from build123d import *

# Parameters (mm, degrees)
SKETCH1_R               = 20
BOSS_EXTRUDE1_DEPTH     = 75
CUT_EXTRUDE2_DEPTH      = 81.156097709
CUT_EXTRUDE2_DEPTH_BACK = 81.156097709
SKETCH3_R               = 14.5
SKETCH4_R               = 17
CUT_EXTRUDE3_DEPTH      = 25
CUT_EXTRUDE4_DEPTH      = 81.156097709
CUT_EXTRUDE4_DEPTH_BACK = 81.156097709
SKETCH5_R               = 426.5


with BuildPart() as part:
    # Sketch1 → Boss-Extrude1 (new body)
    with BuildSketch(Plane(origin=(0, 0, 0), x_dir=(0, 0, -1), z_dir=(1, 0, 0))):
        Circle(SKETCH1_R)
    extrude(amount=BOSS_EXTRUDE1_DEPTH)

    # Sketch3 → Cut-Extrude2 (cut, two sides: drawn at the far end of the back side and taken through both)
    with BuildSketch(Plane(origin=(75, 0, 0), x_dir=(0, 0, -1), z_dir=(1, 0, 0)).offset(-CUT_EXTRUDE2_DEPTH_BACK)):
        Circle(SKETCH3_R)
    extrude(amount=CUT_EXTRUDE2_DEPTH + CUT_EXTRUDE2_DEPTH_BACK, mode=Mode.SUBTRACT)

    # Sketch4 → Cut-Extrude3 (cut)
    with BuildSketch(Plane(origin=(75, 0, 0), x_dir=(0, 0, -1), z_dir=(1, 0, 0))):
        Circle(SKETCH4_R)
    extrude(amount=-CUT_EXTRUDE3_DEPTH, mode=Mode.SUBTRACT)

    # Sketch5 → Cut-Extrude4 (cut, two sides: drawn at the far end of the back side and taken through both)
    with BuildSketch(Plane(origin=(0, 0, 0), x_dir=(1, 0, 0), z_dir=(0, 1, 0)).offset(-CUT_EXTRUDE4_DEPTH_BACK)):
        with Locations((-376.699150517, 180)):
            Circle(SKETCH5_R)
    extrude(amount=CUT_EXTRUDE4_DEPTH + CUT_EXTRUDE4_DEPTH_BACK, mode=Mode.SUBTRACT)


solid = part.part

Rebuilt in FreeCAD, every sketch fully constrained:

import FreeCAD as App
import Part
import Sketcher

doc = App.newDocument("Part")
body = doc.addObject("PartDesign::Body", "Body")

# Sketch on YZ plane
sketch1 = body.newObject("Sketcher::SketchObject", "Sketch")
sketch1.AttachmentSupport = (doc.getObject("YZ_Plane"), [""])
sketch1.MapMode = "FlatFace"
sketch1.addGeometry(Part.Circle(App.Vector(0, 0, 0), App.Vector(0, 0, 1), 20), False)
sketch1.addConstraint(Sketcher.Constraint("Coincident", 0, 3, -1, 1))
sketch1.addConstraint(Sketcher.Constraint("Diameter", 0, 40.0))
pad1 = body.newObject("PartDesign::Pad", "Pad")
pad1.Profile = sketch1
pad1.Length = 75

# Sketch on YZ plane
sketch2 = body.newObject("Sketcher::SketchObject", "Sketch001")
sketch2.AttachmentSupport = (doc.getObject("YZ_Plane"), [""])
sketch2.MapMode = "FlatFace"
sketch2.AttachmentOffset = App.Placement(App.Vector(0, 0, 75), App.Rotation())
sketch2.addGeometry(Part.Circle(App.Vector(0, 0, 0), App.Vector(0, 0, 1), 14.5), False)
sketch2.addConstraint(Sketcher.Constraint("Coincident", 0, 3, -1, 1))
sketch2.addConstraint(Sketcher.Constraint("Diameter", 0, 29.0))
pocket1 = body.newObject("PartDesign::Pocket", "Pocket")
pocket1.Profile = sketch2
pocket1.Type = "ThroughAll"
pocket1.Midplane = True

# Sketch on YZ plane
sketch3 = body.newObject("Sketcher::SketchObject", "Sketch002")
sketch3.AttachmentSupport = (doc.getObject("YZ_Plane"), [""])
sketch3.MapMode = "FlatFace"
sketch3.AttachmentOffset = App.Placement(App.Vector(0, 0, 75), App.Rotation())
sketch3.addGeometry(Part.Circle(App.Vector(0, 0, 0), App.Vector(0, 0, 1), 17), False)
sketch3.addConstraint(Sketcher.Constraint("Coincident", 0, 3, -1, 1))
sketch3.addConstraint(Sketcher.Constraint("Diameter", 0, 34.0))
pocket2 = body.newObject("PartDesign::Pocket", "Pocket001")
pocket2.Profile = sketch3
pocket2.Length = 25

# Sketch on XZ plane
sketch4 = body.newObject("Sketcher::SketchObject", "Sketch003")
sketch4.AttachmentSupport = (doc.getObject("XZ_Plane"), [""])
sketch4.MapMode = "FlatFace"
sketch4.addGeometry(Part.Circle(App.Vector(-376.699151, -180, 0), App.Vector(0, 0, 1), 426.5), False)
sketch4.addConstraint(Sketcher.Constraint("Diameter", 0, 853.0))
sketch4.addConstraint(Sketcher.Constraint("DistanceY", 0, 3, -1, 1, 180.0))
sketch4.addConstraint(Sketcher.Constraint("DistanceX", 0, 3, -1, 1, 376.699151))
pocket3 = body.newObject("PartDesign::Pocket", "Pocket002")
pocket3.Profile = sketch4
pocket3.Type = "ThroughAll"
pocket3.Midplane = True

doc.recompute()
